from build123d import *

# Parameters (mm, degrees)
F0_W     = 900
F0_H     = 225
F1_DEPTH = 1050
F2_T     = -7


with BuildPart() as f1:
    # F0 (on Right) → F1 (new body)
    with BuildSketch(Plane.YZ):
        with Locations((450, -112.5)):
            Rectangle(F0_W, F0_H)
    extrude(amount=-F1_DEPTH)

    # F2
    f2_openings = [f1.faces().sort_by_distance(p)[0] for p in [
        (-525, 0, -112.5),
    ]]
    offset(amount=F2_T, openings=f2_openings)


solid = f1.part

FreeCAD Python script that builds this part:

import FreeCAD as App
import Part
import Sketcher

V = App.Vector
Q = App.Units.Quantity


def faces_at(feature, points):
    """Names of the faces that lie closest to the given points."""
    faces = feature.Shape.Faces
    near = lambda p: min(range(len(faces)), key=lambda i: faces[i].distToShape(Part.Vertex(*p))[0])
    return sorted({f"Face{near(p) + 1}" for p in points})


def add_polygon(sketch, points):
    """Adds a closed chain of lines whose ends are joined by coincident constraints."""
    first, n = sketch.GeometryCount, len(points)
    for a, b in zip(points, points[1:] + points[:1]):
        sketch.addGeometry(Part.LineSegment(App.Vector(*a, 0), App.Vector(*b, 0)), False)
    for i in range(n):
        sketch.addConstraint(Sketcher.Constraint("Coincident", first + i, 2, first + (i + 1) % n, 1))

doc = App.newDocument("Part")
body = doc.addObject("PartDesign::Body", "Body")

# Sketch on YZ plane
sketch1 = body.newObject("Sketcher::SketchObject", "Sketch")
sketch1.AttachmentSupport = (doc.getObject("YZ_Plane"), [""])
sketch1.MapMode = "FlatFace"
add_polygon(sketch1, [(0, 0), (0, -225), (900, -225), (900, 0)])  # lines 0-3
sketch1.addConstraint(Sketcher.Constraint("Vertical", 0))
sketch1.addConstraint(Sketcher.Constraint("Horizontal", 1))
sketch1.addConstraint(Sketcher.Constraint("Vertical", 2))
sketch1.addConstraint(Sketcher.Constraint("Horizontal", 3))
sketch1.addConstraint(Sketcher.Constraint("Coincident", 3, 2, -1, 1))
sketch1.addConstraint(Sketcher.Constraint("DistanceX", 1, 1, 1, 2, Q("900 mm")))
sketch1.addConstraint(Sketcher.Constraint("DistanceY", 0, 2, 0, 1, Q("225 mm")))
pad1 = body.newObject("PartDesign::Pad", "Pad")
pad1.Profile = sketch1
pad1.Length = 1050
pad1.Reversed = True
doc.recompute()

thickness = body.newObject("PartDesign::Thickness", "Thickness")
thickness.Base = (pad1, faces_at(pad1, [(-525, 0, -112.5)]))
thickness.Value = 7
thickness.Reversed = True
thickness.Join = "Arc"

doc.recompute()
